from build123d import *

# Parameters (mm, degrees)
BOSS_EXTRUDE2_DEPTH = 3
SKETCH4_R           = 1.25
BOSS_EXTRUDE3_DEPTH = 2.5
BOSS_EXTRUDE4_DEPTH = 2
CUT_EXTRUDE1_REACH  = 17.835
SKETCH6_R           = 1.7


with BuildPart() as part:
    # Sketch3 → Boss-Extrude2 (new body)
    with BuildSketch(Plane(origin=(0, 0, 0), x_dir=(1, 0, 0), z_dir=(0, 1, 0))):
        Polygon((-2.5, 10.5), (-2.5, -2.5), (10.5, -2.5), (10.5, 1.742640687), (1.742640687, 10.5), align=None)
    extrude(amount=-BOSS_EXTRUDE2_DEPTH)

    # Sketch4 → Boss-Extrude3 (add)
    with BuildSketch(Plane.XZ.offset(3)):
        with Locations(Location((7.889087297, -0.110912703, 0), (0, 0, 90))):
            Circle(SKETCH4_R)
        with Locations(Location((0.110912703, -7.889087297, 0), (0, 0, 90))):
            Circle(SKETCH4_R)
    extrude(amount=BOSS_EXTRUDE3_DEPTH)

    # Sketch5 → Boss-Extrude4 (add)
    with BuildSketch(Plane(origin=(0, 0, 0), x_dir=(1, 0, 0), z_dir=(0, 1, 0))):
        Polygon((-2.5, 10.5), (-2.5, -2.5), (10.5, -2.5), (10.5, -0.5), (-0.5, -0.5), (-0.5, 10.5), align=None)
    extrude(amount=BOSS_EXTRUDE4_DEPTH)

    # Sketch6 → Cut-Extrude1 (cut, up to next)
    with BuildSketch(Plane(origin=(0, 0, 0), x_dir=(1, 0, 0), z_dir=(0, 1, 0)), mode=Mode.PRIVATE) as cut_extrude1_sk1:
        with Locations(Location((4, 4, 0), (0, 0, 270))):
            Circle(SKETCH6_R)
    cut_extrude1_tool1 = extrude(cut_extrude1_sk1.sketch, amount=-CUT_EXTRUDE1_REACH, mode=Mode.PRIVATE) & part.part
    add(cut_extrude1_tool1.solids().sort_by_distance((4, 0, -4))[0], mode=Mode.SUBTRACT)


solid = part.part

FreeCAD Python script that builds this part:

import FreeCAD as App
import Part
import Sketcher
from FreeCAD import Vector


def add_polygon(sketch, points):
    """Adds a closed chain of lines whose ends are joined by coincident constraints."""
    first, n = sketch.GeometryCount, len(points)
    for a, b in zip(points, points[1:] + points[:1]):
        sketch.addGeometry(Part.LineSegment(App.Vector(*a, 0), App.Vector(*b, 0)), False)
    for i in range(n):
        sketch.addConstraint(Sketcher.Constraint("Coincident", first + i, 2, first + (i + 1) % n, 1))

doc = App.newDocument("Part")
body = doc.addObject("PartDesign::Body", "Body")

# Sketch on XZ plane
sketch1 = body.newObject("Sketcher::SketchObject", "Sketch")
sketch1.AttachmentSupport = (doc.getObject("XZ_Plane"), [""])
sketch1.MapMode = "FlatFace"
add_polygon(sketch1, [(-2.5, -10.5), (-2.5, 2.5), (10.5, 2.5), (10.5, -1.742641), (1.742641, -10.5)])  # lines 0-4
sketch1.addConstraint([
    Sketcher.Constraint("Vertical", 0),
    Sketcher.Constraint("Horizontal", 1),
    Sketcher.Constraint("Vertical", 2),
    Sketcher.Constraint("Horizontal", 4),
    Sketcher.Constraint("Equal", 1, 0),
    Sketcher.Constraint("Equal", 4, 2),
    Sketcher.Constraint("DistanceX", 1, 1, 1, 2, 13.0),
    Sketcher.Constraint("DistanceX", 0, 2, -1, 1, 2.5),
    Sketcher.Constraint("DistanceY", -1, 1, 0, 2, 2.5),
    Sketcher.Constraint("DistanceX", 4, 2, 4, 1, 4.242641),
])
pad1 = body.newObject("PartDesign::Pad", "Pad")
pad1.Profile = sketch1
pad1.Length = 3

# Sketch on XZ plane
sketch2 = body.newObject("Sketcher::SketchObject", "Sketch001")
sketch2.AttachmentSupport = (doc.getObject("XZ_Plane"), [""])
sketch2.MapMode = "FlatFace"
sketch2.AttachmentOffset = App.Placement(Vector(0, 0, 3), App.Rotation())
sketch2.addGeometry([
    Part.Circle(Vector(7.889087, -0.110913, 0), Vector(0, 0, 1), 1.25),
    Part.Circle(Vector(0.110913, -7.889087, 0), Vector(0, 0, 1), 1.25),
], False)
sketch2.addConstraint([
    Sketcher.Constraint("Equal", 0, 1),
    Sketcher.Constraint("Diameter", 0, 2.5),
    Sketcher.Constraint("DistanceX", -1, 1, 0, 3, 7.889087),
    Sketcher.Constraint("DistanceY", 0, 3, -1, 1, 0.110913),
    Sketcher.Constraint("DistanceX", -1, 1, 1, 3, 0.110913),
    Sketcher.Constraint("DistanceY", 1, 3, -1, 1, 7.889087),
])
pad2 = body.newObject("PartDesign::Pad", "Pad001")
pad2.Profile = sketch2
pad2.Length = 2.5

# Sketch on XZ plane
sketch3 = body.newObject("Sketcher::SketchObject", "Sketch002")
sketch3.AttachmentSupport = (doc.getObject("XZ_Plane"), [""])
sketch3.MapMode = "FlatFace"
add_polygon(sketch3, [(-2.5, -10.5), (-2.5, 2.5), (10.5, 2.5), (10.5, 0.5), (-0.5, 0.5), (-0.5, -10.5)])  # lines 0-5
sketch3.addConstraint([
    Sketcher.Constraint("Vertical", 0),
    Sketcher.Constraint("Horizontal", 1),
    Sketcher.Constraint("Vertical", 2),
    Sketcher.Constraint("Horizontal", 3),
    Sketcher.Constraint("Vertical", 4),
    Sketcher.Constraint("Horizontal", 5),
    Sketcher.Constraint("Equal", 1, 0),
    Sketcher.Constraint("Equal", 5, 2),
    Sketcher.Constraint("DistanceX", 1, 1, 1, 2, 13.0),
    Sketcher.Constraint("DistanceX", 3, 2, 3, 1, 11.0),
    Sketcher.Constraint("DistanceX", 0, 2, -1, 1, 2.5),
    Sketcher.Constraint("DistanceY", -1, 1, 0, 2, 2.5),
])
pad3 = body.newObject("PartDesign::Pad", "Pad002")
pad3.Profile = sketch3
pad3.Length = 2
pad3.Reversed = True

# Sketch on XZ plane
sketch4 = body.newObject("Sketcher::SketchObject", "Sketch003")
sketch4.AttachmentSupport = (doc.getObject("XZ_Plane"), [""])
sketch4.MapMode = "FlatFace"
sketch4.addGeometry(Part.Circle(Vector(4, -4, 0), Vector(0, 0, 1), 1.7), False)
sketch4.addConstraint([
    Sketcher.Constraint("Diameter", 0, 3.4),
    Sketcher.Constraint("DistanceX", -1, 1, 0, 3, 4.0),
    Sketcher.Constraint("DistanceY", 0, 3, -1, 1, 4.0),
])
pocket1 = body.newObject("PartDesign::Pocket", "Pocket")
pocket1.Profile = sketch4
pocket1.Type = "UpToFirst"
pocket1.Reversed = True

doc.recompute()
